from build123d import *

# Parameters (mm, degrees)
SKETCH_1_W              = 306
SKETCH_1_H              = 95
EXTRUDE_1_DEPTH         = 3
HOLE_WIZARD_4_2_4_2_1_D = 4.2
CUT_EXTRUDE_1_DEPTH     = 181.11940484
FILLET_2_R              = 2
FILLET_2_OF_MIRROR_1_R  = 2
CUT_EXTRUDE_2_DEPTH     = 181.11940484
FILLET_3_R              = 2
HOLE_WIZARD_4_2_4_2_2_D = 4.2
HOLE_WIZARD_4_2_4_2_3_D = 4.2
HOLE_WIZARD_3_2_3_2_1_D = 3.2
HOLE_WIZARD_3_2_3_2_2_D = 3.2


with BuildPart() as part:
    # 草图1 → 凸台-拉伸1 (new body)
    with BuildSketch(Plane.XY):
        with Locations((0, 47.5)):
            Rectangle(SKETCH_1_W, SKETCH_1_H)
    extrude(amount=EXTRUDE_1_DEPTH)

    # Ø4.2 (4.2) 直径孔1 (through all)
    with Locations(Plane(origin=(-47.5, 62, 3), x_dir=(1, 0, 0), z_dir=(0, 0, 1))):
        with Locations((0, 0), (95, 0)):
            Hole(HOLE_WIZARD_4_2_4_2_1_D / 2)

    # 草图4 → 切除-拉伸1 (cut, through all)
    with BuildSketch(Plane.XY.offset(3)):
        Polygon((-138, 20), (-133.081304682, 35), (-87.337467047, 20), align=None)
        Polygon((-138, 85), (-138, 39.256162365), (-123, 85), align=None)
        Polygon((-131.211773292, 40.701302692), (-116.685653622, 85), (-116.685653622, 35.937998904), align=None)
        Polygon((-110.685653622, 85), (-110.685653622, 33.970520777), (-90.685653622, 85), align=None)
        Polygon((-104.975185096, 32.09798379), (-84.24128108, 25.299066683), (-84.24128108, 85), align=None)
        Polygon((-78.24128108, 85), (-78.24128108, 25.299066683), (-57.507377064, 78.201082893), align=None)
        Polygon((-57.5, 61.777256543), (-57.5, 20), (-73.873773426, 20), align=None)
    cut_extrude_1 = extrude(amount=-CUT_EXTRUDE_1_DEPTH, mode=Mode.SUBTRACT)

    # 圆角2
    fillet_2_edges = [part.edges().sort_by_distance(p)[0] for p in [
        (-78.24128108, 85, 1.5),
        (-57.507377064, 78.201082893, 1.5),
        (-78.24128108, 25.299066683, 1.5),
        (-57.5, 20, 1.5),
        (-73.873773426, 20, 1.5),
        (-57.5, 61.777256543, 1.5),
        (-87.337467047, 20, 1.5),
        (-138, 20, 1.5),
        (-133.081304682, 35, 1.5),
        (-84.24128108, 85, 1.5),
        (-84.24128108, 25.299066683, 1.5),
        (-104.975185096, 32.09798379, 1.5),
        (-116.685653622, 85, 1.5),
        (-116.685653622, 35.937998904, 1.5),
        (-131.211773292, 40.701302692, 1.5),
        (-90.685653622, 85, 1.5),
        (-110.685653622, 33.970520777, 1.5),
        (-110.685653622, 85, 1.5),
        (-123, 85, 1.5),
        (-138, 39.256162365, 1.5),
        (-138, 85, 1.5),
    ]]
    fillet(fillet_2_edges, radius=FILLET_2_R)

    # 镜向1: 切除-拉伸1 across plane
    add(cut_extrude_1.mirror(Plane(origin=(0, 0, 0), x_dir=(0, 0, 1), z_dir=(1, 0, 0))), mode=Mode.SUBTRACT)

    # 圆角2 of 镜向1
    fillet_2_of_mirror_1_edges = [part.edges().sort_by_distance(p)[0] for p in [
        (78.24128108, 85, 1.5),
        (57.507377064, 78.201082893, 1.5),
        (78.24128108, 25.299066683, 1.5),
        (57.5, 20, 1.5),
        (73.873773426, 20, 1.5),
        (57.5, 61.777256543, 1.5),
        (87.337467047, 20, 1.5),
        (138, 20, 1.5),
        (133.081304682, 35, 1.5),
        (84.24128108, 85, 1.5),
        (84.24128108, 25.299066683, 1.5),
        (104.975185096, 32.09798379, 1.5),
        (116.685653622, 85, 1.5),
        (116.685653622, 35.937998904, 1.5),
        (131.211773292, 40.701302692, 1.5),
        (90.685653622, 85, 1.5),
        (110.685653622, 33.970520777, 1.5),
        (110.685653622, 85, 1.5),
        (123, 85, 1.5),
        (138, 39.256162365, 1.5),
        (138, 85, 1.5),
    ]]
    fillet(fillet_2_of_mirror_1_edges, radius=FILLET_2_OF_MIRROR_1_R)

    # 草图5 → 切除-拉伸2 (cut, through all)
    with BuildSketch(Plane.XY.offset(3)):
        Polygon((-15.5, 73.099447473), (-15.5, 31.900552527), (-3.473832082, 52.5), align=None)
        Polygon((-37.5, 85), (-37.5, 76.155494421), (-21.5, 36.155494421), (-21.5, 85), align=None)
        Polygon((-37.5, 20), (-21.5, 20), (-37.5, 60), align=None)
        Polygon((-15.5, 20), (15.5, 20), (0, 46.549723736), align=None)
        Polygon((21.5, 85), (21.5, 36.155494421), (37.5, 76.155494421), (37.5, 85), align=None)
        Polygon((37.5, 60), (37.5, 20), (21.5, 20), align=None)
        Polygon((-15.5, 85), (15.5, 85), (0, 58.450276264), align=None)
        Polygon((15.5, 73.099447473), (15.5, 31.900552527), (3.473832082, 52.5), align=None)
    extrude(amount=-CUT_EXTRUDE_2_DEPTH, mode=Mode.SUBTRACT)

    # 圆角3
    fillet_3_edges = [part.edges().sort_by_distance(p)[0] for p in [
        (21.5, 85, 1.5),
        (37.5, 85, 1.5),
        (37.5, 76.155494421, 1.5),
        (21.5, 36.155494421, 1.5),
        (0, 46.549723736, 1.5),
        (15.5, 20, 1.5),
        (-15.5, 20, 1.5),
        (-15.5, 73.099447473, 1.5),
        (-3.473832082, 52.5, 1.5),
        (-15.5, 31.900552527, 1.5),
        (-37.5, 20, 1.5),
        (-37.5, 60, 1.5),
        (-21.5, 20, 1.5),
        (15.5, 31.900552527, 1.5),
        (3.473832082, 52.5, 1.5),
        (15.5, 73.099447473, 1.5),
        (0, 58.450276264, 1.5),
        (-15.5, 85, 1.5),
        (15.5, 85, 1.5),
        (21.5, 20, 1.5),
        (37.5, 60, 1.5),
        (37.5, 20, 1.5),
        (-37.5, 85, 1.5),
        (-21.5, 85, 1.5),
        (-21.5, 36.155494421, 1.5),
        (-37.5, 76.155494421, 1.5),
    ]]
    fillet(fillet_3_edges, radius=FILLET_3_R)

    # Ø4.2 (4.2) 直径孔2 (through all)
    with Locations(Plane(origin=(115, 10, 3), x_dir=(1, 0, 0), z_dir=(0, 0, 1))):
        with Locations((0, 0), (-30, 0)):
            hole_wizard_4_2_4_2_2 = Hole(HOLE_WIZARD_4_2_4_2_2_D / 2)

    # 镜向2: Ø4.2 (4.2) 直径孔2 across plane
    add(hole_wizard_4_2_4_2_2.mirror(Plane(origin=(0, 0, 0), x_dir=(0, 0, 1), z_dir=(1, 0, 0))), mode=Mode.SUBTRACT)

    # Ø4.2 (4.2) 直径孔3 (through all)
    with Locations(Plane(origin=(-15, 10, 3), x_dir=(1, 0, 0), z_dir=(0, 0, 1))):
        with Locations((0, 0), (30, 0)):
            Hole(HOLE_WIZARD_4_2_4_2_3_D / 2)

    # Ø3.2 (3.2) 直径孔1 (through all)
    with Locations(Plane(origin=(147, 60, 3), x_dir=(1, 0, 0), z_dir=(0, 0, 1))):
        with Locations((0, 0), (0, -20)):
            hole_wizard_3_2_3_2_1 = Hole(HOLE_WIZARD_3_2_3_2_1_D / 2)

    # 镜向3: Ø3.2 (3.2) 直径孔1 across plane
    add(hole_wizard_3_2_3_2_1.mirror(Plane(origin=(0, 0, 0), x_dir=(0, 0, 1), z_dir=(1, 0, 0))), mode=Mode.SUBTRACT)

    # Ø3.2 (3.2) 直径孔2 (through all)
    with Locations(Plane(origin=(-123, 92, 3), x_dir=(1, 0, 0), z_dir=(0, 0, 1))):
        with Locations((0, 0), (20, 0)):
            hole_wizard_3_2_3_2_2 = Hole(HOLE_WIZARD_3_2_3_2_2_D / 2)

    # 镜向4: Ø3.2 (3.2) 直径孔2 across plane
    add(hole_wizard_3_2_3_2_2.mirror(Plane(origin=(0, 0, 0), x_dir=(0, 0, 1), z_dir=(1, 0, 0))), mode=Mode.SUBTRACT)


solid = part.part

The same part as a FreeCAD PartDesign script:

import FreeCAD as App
import Part
import Sketcher

V = App.Vector


def edges_at(feature, points):
    """Names of the edges that pass closest to the given points."""
    edges = feature.Shape.Edges
    near = lambda p: min(range(len(edges)), key=lambda i: edges[i].distToShape(Part.Vertex(*p))[0])
    return sorted({f"Edge{near(p) + 1}" for p in points})

doc = App.newDocument("Part")
body = doc.addObject("PartDesign::Body", "Body")

sketch1 = body.newObject("Sketcher::SketchObject", "Sketch")
sketch1.AttachmentSupport = (doc.getObject("XY_Plane"), [""])
sketch1.MapMode = "FlatFace"
sketch1.addGeometry([
    Part.LineSegment(V(-153, 95, 0), V(-153, 0, 0)),
    Part.LineSegment(V(-153, 0, 0), V(153, 0, 0)),
    Part.LineSegment(V(153, 0, 0), V(153, 95, 0)),
    Part.LineSegment(V(153, 95, 0), V(-153, 95, 0)),
], False)
sketch1.addConstraint([
    Sketcher.Constraint("Coincident", 0, 2, 1, 1),
    Sketcher.Constraint("Coincident", 1, 2, 2, 1),
    Sketcher.Constraint("Coincident", 2, 2, 3, 1),
    Sketcher.Constraint("Coincident", 3, 2, 0, 1),
    Sketcher.Constraint("Vertical", 0),
    Sketcher.Constraint("Horizontal", 1),
    Sketcher.Constraint("Vertical", 2),
    Sketcher.Constraint("Horizontal", 3),
    Sketcher.Constraint("Symmetric", 0, 2, 1, 2, -1, 1),
    Sketcher.Constraint("DistanceX", 1, 1, 1, 2, 306.0),
    Sketcher.Constraint("DistanceY", 0, 2, 0, 1, 95.0),
])
pad1 = body.newObject("PartDesign::Pad", "Pad")
pad1.Profile = sketch1
pad1.Length = 3

sketch2 = body.newObject("Sketcher::SketchObject", "Sketch001")
sketch2.AttachmentSupport = (doc.getObject("XY_Plane"), [""])
sketch2.MapMode = "FlatFace"
sketch2.AttachmentOffset = App.Placement(V(0, 0, 3), App.Rotation())
sketch2.addGeometry([
    Part.Circle(V(-47.5, 62, 0), V(0, 0, 1), 2.1),
    Part.Circle(V(47.5, 62, 0), V(0, 0, 1), 2.1),
], False)
sketch2.addConstraint([
    Sketcher.Constraint("Equal", 0, 1),
    Sketcher.Constraint("Symmetric", 0, 3, 1, 3, -2),
    Sketcher.Constraint("Diameter", 0, 4.2),
    Sketcher.Constraint("DistanceY", -1, 1, 0, 3, 62.0),
    Sketcher.Constraint("DistanceX", 0, 3, 1, 3, 95.0),
])
doc.recompute()
hole = body.newObject("PartDesign::Hole", "Hole")
hole.Profile = sketch2
hole.ThreadType = "None"
hole.Diameter = 4.2
hole.DepthType = "ThroughAll"

sketch3 = body.newObject("Sketcher::SketchObject", "Sketch002")
sketch3.AttachmentSupport = (doc.getObject("XY_Plane"), [""])
sketch3.MapMode = "FlatFace"
sketch3.AttachmentOffset = App.Placement(V(0, 0, 3), App.Rotation())
sketch3.addGeometry([
    Part.LineSegment(V(-133, 35, 0), V(-138, 20, 0)),
    Part.LineSegment(V(-138, 20, 0), V(-87, 20, 0)),
    Part.LineSegment(V(-87, 20, 0), V(-133, 35, 0)),
    Part.LineSegment(V(-138, 85, 0), V(-138, 39, 0)),
    Part.LineSegment(V(-138, 39, 0), V(-123, 85, 0)),
    Part.LineSegment(V(-123, 85, 0), V(-138, 85, 0)),
    Part.LineSegment(V(-117, 85, 0), V(-131, 41, 0)),
    Part.LineSegment(V(-131, 41, 0), V(-117, 36, 0)),
    Part.LineSegment(V(-117, 36, 0), V(-117, 85, 0)),
    Part.LineSegment(V(-111, 85, 0), V(-111, 34, 0)),
    Part.LineSegment(V(-111, 34, 0), V(-91, 85, 0)),
    Part.LineSegment(V(-91, 85, 0), V(-111, 85, 0)),
    Part.LineSegment(V(-105, 32, 0), V(-84, 25, 0)),
    Part.LineSegment(V(-84, 25, 0), V(-84, 85, 0)),
    Part.LineSegment(V(-84, 85, 0), V(-105, 32, 0)),
    Part.LineSegment(V(-78, 85, 0), V(-78, 25, 0)),
    Part.LineSegment(V(-78, 25, 0), V(-58, 78, 0)),
    Part.LineSegment(V(-58, 78, 0), V(-78, 85, 0)),
    Part.LineSegment(V(-58, 20, 0), V(-58, 62, 0)),
    Part.LineSegment(V(-58, 62, 0), V(-74, 20, 0)),
    Part.LineSegment(V(-74, 20, 0), V(-58, 20, 0)),
], False)
sketch3.addConstraint([
    Sketcher.Constraint("Coincident", 0, 2, 1, 1),
    Sketcher.Constraint("Coincident", 1, 2, 2, 1),
    Sketcher.Constraint("Coincident", 2, 2, 0, 1),
    Sketcher.Constraint("Coincident", 3, 2, 4, 1),
    Sketcher.Constraint("Coincident", 4, 2, 5, 1),
    Sketcher.Constraint("Coincident", 5, 2, 3, 1),
    Sketcher.Constraint("Coincident", 6, 2, 7, 1),
    Sketcher.Constraint("Coincident", 7, 2, 8, 1),
    Sketcher.Constraint("Coincident", 8, 2, 6, 1),
    Sketcher.Constraint("Coincident", 9, 2, 10, 1),
    Sketcher.Constraint("Coincident", 10, 2, 11, 1),
    Sketcher.Constraint("Coincident", 11, 2, 9, 1),
    Sketcher.Constraint("Coincident", 12, 2, 13, 1),
    Sketcher.Constraint("Coincident", 13, 2, 14, 1),
    Sketcher.Constraint("Coincident", 14, 2, 12, 1),
    Sketcher.Constraint("Coincident", 15, 2, 16, 1),
    Sketcher.Constraint("Coincident", 16, 2, 17, 1),
    Sketcher.Constraint("Coincident", 17, 2, 15, 1),
    Sketcher.Constraint("Coincident", 18, 2, 19, 1),
    Sketcher.Constraint("Coincident", 19, 2, 20, 1),
    Sketcher.Constraint("Coincident", 20, 2, 18, 1),
    Sketcher.Constraint("Horizontal", 1),
    Sketcher.Constraint("Vertical", 3),
    Sketcher.Constraint("Horizontal", 5),
    Sketcher.Constraint("Vertical", 8),
    Sketcher.Constraint("Vertical", 9),
    Sketcher.Constraint("Horizontal", 11),
    Sketcher.Constraint("Vertical", 13),
    Sketcher.Constraint("Vertical", 15),
    Sketcher.Constraint("Vertical", 18),
    Sketcher.Constraint("Horizontal", 20),
    Sketcher.Constraint("Perpendicular", 0, 2),
    Sketcher.Constraint("Perpendicular", 2, 4),
    Sketcher.Constraint("Parallel", 4, 6),
    Sketcher.Constraint("Perpendicular", 6, 7),
    Sketcher.Constraint("Parallel", 7, 12),
    Sketcher.Constraint("Parallel", 10, 14),
    Sketcher.Constraint("Parallel", 14, 16),
    Sketcher.Constraint("Parallel", 12, 17),
    Sketcher.Constraint("Parallel", 16, 19),
    Sketcher.Constraint("Horizontal", 5, 2, 8, 2),
    Sketcher.Constraint("Horizontal", 8, 2, 10, 2),
    Sketcher.Constraint("Horizontal", 11, 2, 13, 2),
    Sketcher.Constraint("Horizontal", 12, 2, 15, 2),
    Sketcher.Constraint("Horizontal", 13, 2, 17, 2),
    Sketcher.Constraint("Horizontal", 1, 2, 19, 2),
    Sketcher.Constraint("Vertical", 0, 2, 3, 2),
    Sketcher.Constraint("Equal", 2, 4),
    Sketcher.Constraint("DistanceX", 5, 2, 5, 1, 15.0),
    Sketcher.Constraint("DistanceX", 11, 2, 11, 1, 20.0),
    Sketcher.Constraint("DistanceX", 0, 2, -1, 1, 138.0),
    Sketcher.Constraint("DistanceY", -1, 1, 0, 2, 20.0),
    Sketcher.Constraint("DistanceY", -1, 1, 4, 2, 85.0),
    Sketcher.Constraint("DistanceX", 7, 2, 9, 2, 6.0),
    Sketcher.Constraint("DistanceX", 12, 2, 15, 2, 6.0),
    Sketcher.Constraint("DistanceX", 18, 2, -1, 1, 57.5),
    Sketcher.Constraint("DistanceY", 8, 1, 8, 2, 49.062001),
    Sketcher.Constraint("DistanceY", 9, 2, 9, 1, 51.029479),
    Sketcher.Constraint("Distance", 7, 15.287159),
    Sketcher.Constraint("Distance", 14, 56.82005),
    Sketcher.Constraint("DistanceX", 20, 1, 20, 2, 16.373773),
    Sketcher.Constraint("DistanceX", 12, 2, -1, 1, 84.241281),
    Sketcher.Constraint("DistanceX", 2, 2, 6, 2, 1.869531),
])
pocket1 = body.newObject("PartDesign::Pocket", "Pocket")
pocket1.Profile = sketch3
pocket1.Type = "ThroughAll"
doc.recompute()

fillet = body.newObject("PartDesign::Fillet", "Fillet")
fillet.Base = (pocket1, edges_at(pocket1, [
    (-78.241, 85, 1.5),
    (-57.507, 78.201, 1.5),
    (-78.241, 25.299, 1.5),
    (-57.5, 20, 1.5),
    (-73.874, 20, 1.5),
    (-57.5, 61.777, 1.5),
    (-87.337, 20, 1.5),
    (-138, 20, 1.5),
    (-133.081, 35, 1.5),
    (-84.241, 85, 1.5),
    (-84.241, 25.299, 1.5),
    (-104.975, 32.098, 1.5),
    (-116.686, 85, 1.5),
    (-116.686, 35.938, 1.5),
    (-131.212, 40.701, 1.5),
    (-90.686, 85, 1.5),
    (-110.686, 33.971, 1.5),
    (-110.686, 85, 1.5),
    (-123, 85, 1.5),
    (-138, 39.256, 1.5),
    (-138, 85, 1.5),
]))
fillet.Radius = 2
doc.recompute()

mirrored = body.newObject("PartDesign::Mirrored", "Mirrored")
mirrored.Originals = [pocket1]
mirrored.MirrorPlane = (doc.getObject("YZ_Plane"), [""])
body.Tip = mirrored
doc.recompute()

fillet2 = body.newObject("PartDesign::Fillet", "Fillet001")
fillet2.Base = (mirrored, edges_at(mirrored, [
    (78.241, 85, 1.5),
    (57.507, 78.201, 1.5),
    (78.241, 25.299, 1.5),
    (57.5, 20, 1.5),
    (73.874, 20, 1.5),
    (57.5, 61.777, 1.5),
    (87.337, 20, 1.5),
    (138, 20, 1.5),
    (133.081, 35, 1.5),
    (84.241, 85, 1.5),
    (84.241, 25.299, 1.5),
    (104.975, 32.098, 1.5),
    (116.686, 85, 1.5),
    (116.686, 35.938, 1.5),
    (131.212, 40.701, 1.5),
    (90.686, 85, 1.5),
    (110.686, 33.971, 1.5),
    (110.686, 85, 1.5),
    (123, 85, 1.5),
    (138, 39.256, 1.5),
    (138, 85, 1.5),
]))
fillet2.Radius = 2

sketch4 = body.newObject("Sketcher::SketchObject", "Sketch003")
sketch4.AttachmentSupport = (doc.getObject("XY_Plane"), [""])
sketch4.MapMode = "FlatFace"
sketch4.AttachmentOffset = App.Placement(V(0, 0, 3), App.Rotation())
sketch4.addGeometry([
    Part.LineSegment(V(-16, 73, 0), V(-16, 32, 0)),
    Part.LineSegment(V(-16, 32, 0), V(-3, 52, 0)),
    Part.LineSegment(V(-3, 52, 0), V(-16, 73, 0)),
    Part.LineSegment(V(-38, 85, 0), V(-38, 76, 0)),
    Part.LineSegment(V(-38, 76, 0), V(-22, 36, 0)),
    Part.LineSegment(V(-22, 36, 0), V(-22, 85, 0)),
    Part.LineSegment(V(-22, 85, 0), V(-38, 85, 0)),
    Part.LineSegment(V(-38, 20, 0), V(-22, 20, 0)),
    Part.LineSegment(V(-22, 20, 0), V(-38, 60, 0)),
    Part.LineSegment(V(-38, 60, 0), V(-38, 20, 0)),
    Part.LineSegment(V(-16, 20, 0), V(16, 20, 0)),
    Part.LineSegment(V(16, 20, 0), V(0, 47, 0)),
    Part.LineSegment(V(0, 47, 0), V(-16, 20, 0)),
    Part.LineSegment(V(22, 85, 0), V(22, 36, 0)),
    Part.LineSegment(V(22, 36, 0), V(38, 76, 0)),
    Part.LineSegment(V(38, 76, 0), V(38, 85, 0)),
    Part.LineSegment(V(38, 85, 0), V(22, 85, 0)),
    Part.LineSegment(V(38, 20, 0), V(38, 60, 0)),
    Part.LineSegment(V(38, 60, 0), V(22, 20, 0)),
    Part.LineSegment(V(22, 20, 0), V(38, 20, 0)),
    Part.LineSegment(V(16, 85, 0), V(-16, 85, 0)),
    Part.LineSegment(V(-16, 85, 0), V(0, 58, 0)),
    Part.LineSegment(V(0, 58, 0), V(16, 85, 0)),
    Part.LineSegment(V(16, 32, 0), V(16, 73, 0)),
    Part.LineSegment(V(16, 73, 0), V(3, 52, 0)),
    Part.LineSegment(V(3, 52, 0), V(16, 32, 0)),
], False)
sketch4.addConstraint([
    Sketcher.Constraint("Coincident", 0, 2, 1, 1),
    Sketcher.Constraint("Coincident", 1, 2, 2, 1),
    Sketcher.Constraint("Coincident", 2, 2, 0, 1),
    Sketcher.Constraint("Coincident", 3, 2, 4, 1),
    Sketcher.Constraint("Coincident", 4, 2, 5, 1),
    Sketcher.Constraint("Coincident", 5, 2, 6, 1),
    Sketcher.Constraint("Coincident", 6, 2, 3, 1),
    Sketcher.Constraint("Coincident", 7, 2, 8, 1),
    Sketcher.Constraint("Coincident", 8, 2, 9, 1),
    Sketcher.Constraint("Coincident", 9, 2, 7, 1),
    Sketcher.Constraint("Coincident", 10, 2, 11, 1),
    Sketcher.Constraint("Coincident", 11, 2, 12, 1),
    Sketcher.Constraint("Coincident", 12, 2, 10, 1),
    Sketcher.Constraint("Coincident", 13, 2, 14, 1),
    Sketcher.Constraint("Coincident", 14, 2, 15, 1),
    Sketcher.Constraint("Coincident", 15, 2, 16, 1),
    Sketcher.Constraint("Coincident", 16, 2, 13, 1),
    Sketcher.Constraint("Coincident", 17, 2, 18, 1),
    Sketcher.Constraint("Coincident", 18, 2, 19, 1),
    Sketcher.Constraint("Coincident", 19, 2, 17, 1),
    Sketcher.Constraint("Coincident", 20, 2, 21, 1),
    Sketcher.Constraint("Coincident", 21, 2, 22, 1),
    Sketcher.Constraint("Coincident", 22, 2, 20, 1),
    Sketcher.Constraint("Coincident", 23, 2, 24, 1),
    Sketcher.Constraint("Coincident", 24, 2, 25, 1),
    Sketcher.Constraint("Coincident", 25, 2, 23, 1),
    Sketcher.Constraint("Vertical", 0),
    Sketcher.Constraint("Vertical", 3),
    Sketcher.Constraint("Vertical", 5),
    Sketcher.Constraint("Horizontal", 6),
    Sketcher.Constraint("Horizontal", 7),
    Sketcher.Constraint("Vertical", 9),
    Sketcher.Constraint("Horizontal", 10),
    Sketcher.Constraint("Vertical", 13),
    Sketcher.Constraint("Vertical", 15),
    Sketcher.Constraint("Horizontal", 16),
    Sketcher.Constraint("Vertical", 17),
    Sketcher.Constraint("Horizontal", 19),
    Sketcher.Constraint("Horizontal", 20),
    Sketcher.Constraint("Vertical", 23),
    Sketcher.Constraint("Symmetric", 4, 2, 13, 2, -2),
    Sketcher.Constraint("Symmetric", 3, 2, 14, 2, -2),
    Sketcher.Constraint("Symmetric", 8, 2, 17, 2, -2),
    Sketcher.Constraint("Symmetric", 7, 2, 18, 2, -2),
    Sketcher.Constraint("Symmetric", 2, 2, 23, 2, -2),
    Sketcher.Constraint("Symmetric", 1, 2, 24, 2, -2),
    Sketcher.Constraint("PointOnObject", 11, 2, -2),
    Sketcher.Constraint("PointOnObject", 21, 2, -2),
    Sketcher.Constraint("Parallel", 4, 8),
    Sketcher.Constraint("Parallel", 2, 11),
    Sketcher.Constraint("Parallel", 1, 12),
    Sketcher.Constraint("Parallel", 11, 21),
    Sketcher.Constraint("Parallel", 12, 22),
    Sketcher.Constraint("Parallel", 22, 24),
    Sketcher.Constraint("Parallel", 21, 25),
    Sketcher.Constraint("Horizontal", 9, 2, 10, 2),
    Sketcher.Constraint("Horizontal", 6, 2, 15, 2),
    Sketcher.Constraint("Horizontal", 16, 2, 20, 2),
    Sketcher.Constraint("Vertical", 5, 2, 7, 2),
    Sketcher.Constraint("Vertical", 6, 2, 8, 2),
    Sketcher.Constraint("Vertical", 2, 2, 12, 2),
    Sketcher.Constraint("Vertical", 12, 2, 20, 2),
    Sketcher.Constraint("DistanceX", 6, 2, 6, 1, 16.0),
    Sketcher.Constraint("DistanceX", 10, 1, 10, 2, 31.0),
    Sketcher.Constraint("DistanceY", 9, 2, 9, 1, 40.0),
    Sketcher.Constraint("DistanceY", -1, 1, 5, 2, 85.0),
    Sketcher.Constraint("DistanceY", -1, 1, 7, 2, 20.0),
    Sketcher.Constraint("DistanceX", 3, 2, 2, 2, 22.0),
    Sketcher.Constraint("DistanceY", -1, 1, 1, 2, 52.5),
    Sketcher.Constraint("DistanceY", 0, 2, 0, 1, 41.198895),
    Sketcher.Constraint("DistanceY", 3, 2, 3, 1, 8.844506),
    Sketcher.Constraint("DistanceY", 0, 2, 11, 2, 14.649171),
])
pocket2 = body.newObject("PartDesign::Pocket", "Pocket001")
pocket2.Profile = sketch4
pocket2.Type = "ThroughAll"
doc.recompute()

fillet3 = body.newObject("PartDesign::Fillet", "Fillet002")
fillet3.Base = (pocket2, edges_at(pocket2, [
    (21.5, 85, 1.5),
    (37.5, 85, 1.5),
    (37.5, 76.155, 1.5),
    (21.5, 36.155, 1.5),
    (0, 46.55, 1.5),
    (15.5, 20, 1.5),
    (-15.5, 20, 1.5),
    (-15.5, 73.099, 1.5),
    (-3.474, 52.5, 1.5),
    (-15.5, 31.901, 1.5),
    (-37.5, 20, 1.5),
    (-37.5, 60, 1.5),
    (-21.5, 20, 1.5),
    (15.5, 31.901, 1.5),
    (3.474, 52.5, 1.5),
    (15.5, 73.099, 1.5),
    (0, 58.45, 1.5),
    (-15.5, 85, 1.5),
    (15.5, 85, 1.5),
    (21.5, 20, 1.5),
    (37.5, 60, 1.5),
    (37.5, 20, 1.5),
    (-37.5, 85, 1.5),
    (-21.5, 85, 1.5),
    (-21.5, 36.155, 1.5),
    (-37.5, 76.155, 1.5),
]))
fillet3.Radius = 2

sketch5 = body.newObject("Sketcher::SketchObject", "Sketch004")
sketch5.AttachmentSupport = (doc.getObject("XY_Plane"), [""])
sketch5.MapMode = "FlatFace"
sketch5.AttachmentOffset = App.Placement(V(0, 0, 3), App.Rotation())
sketch5.addGeometry([
    Part.Circle(V(115, 10, 0), V(0, 0, 1), 2.1),
    Part.Circle(V(85, 10, 0), V(0, 0, 1), 2.1),
], False)
sketch5.addConstraint([
    Sketcher.Constraint("Equal", 0, 1),
    Sketcher.Constraint("Horizontal", 0, 3, 1, 3),
    Sketcher.Constraint("Diameter", 0, 4.2),
    Sketcher.Constraint("DistanceX", -1, 1, 0, 3, 115.0),
    Sketcher.Constraint("DistanceY", -1, 1, 0, 3, 10.0),
    Sketcher.Constraint("DistanceX", -1, 1, 1, 3, 85.0),
])
doc.recompute()
hole2 = body.newObject("PartDesign::Hole", "Hole001")
hole2.Profile = sketch5
hole2.ThreadType = "None"
hole2.Diameter = 4.2
hole2.DepthType = "ThroughAll"
doc.recompute()

mirrored2 = body.newObject("PartDesign::Mirrored", "Mirrored001")
mirrored2.Originals = [hole2]
mirrored2.MirrorPlane = (doc.getObject("YZ_Plane"), [""])
body.Tip = mirrored2

sketch6 = body.newObject("Sketcher::SketchObject", "Sketch005")
sketch6.AttachmentSupport = (doc.getObject("XY_Plane"), [""])
sketch6.MapMode = "FlatFace"
sketch6.AttachmentOffset = App.Placement(V(0, 0, 3), App.Rotation())
sketch6.addGeometry([
    Part.Circle(V(-15, 10, 0), V(0, 0, 1), 2.1),
    Part.Circle(V(15, 10, 0), V(0, 0, 1), 2.1),
], False)
sketch6.addConstraint([
    Sketcher.Constraint("Equal", 0, 1),
    Sketcher.Constraint("Symmetric", 0, 3, 1, 3, -2),
    Sketcher.Constraint("Diameter", 0, 4.2),
    Sketcher.Constraint("DistanceX", 0, 3, -1, 1, 15.0),
    Sketcher.Constraint("DistanceY", -1, 1, 0, 3, 10.0),
])
doc.recompute()
hole3 = body.newObject("PartDesign::Hole", "Hole002")
hole3.Profile = sketch6
hole3.ThreadType = "None"
hole3.Diameter = 4.2
hole3.DepthType = "ThroughAll"

sketch7 = body.newObject("Sketcher::SketchObject", "Sketch006")
sketch7.AttachmentSupport = (doc.getObject("XY_Plane"), [""])
sketch7.MapMode = "FlatFace"
sketch7.AttachmentOffset = App.Placement(V(0, 0, 3), App.Rotation())
sketch7.addGeometry([
    Part.Circle(V(147, 60, 0), V(0, 0, 1), 1.6),
    Part.Circle(V(147, 40, 0), V(0, 0, 1), 1.6),
], False)
sketch7.addConstraint([
    Sketcher.Constraint("Equal", 0, 1),
    Sketcher.Constraint("Vertical", 0, 3, 1, 3),
    Sketcher.Constraint("Diameter", 0, 3.2),
    Sketcher.Constraint("DistanceX", -1, 1, 0, 3, 147.0),
    Sketcher.Constraint("DistanceY", -1, 1, 0, 3, 60.0),
    Sketcher.Constraint("DistanceY", -1, 1, 1, 3, 40.0),
])
doc.recompute()
hole4 = body.newObject("PartDesign::Hole", "Hole003")
hole4.Profile = sketch7
hole4.ThreadType = "None"
hole4.Diameter = 3.2
hole4.DepthType = "ThroughAll"
doc.recompute()

mirrored3 = body.newObject("PartDesign::Mirrored", "Mirrored002")
mirrored3.Originals = [hole4]
mirrored3.MirrorPlane = (doc.getObject("YZ_Plane"), [""])
body.Tip = mirrored3

sketch8 = body.newObject("Sketcher::SketchObject", "Sketch007")
sketch8.AttachmentSupport = (doc.getObject("XY_Plane"), [""])
sketch8.MapMode = "FlatFace"
sketch8.AttachmentOffset = App.Placement(V(0, 0, 3), App.Rotation())
sketch8.addGeometry([
    Part.Circle(V(-123, 92, 0), V(0, 0, 1), 1.6),
    Part.Circle(V(-103, 92, 0), V(0, 0, 1), 1.6),
], False)
sketch8.addConstraint([
    Sketcher.Constraint("Equal", 0, 1),
    Sketcher.Constraint("Horizontal", 0, 3, 1, 3),
    Sketcher.Constraint("Diameter", 0, 3.2),
    Sketcher.Constraint("DistanceX", 0, 3, -1, 1, 123.0),
    Sketcher.Constraint("DistanceY", -1, 1, 0, 3, 92.0),
    Sketcher.Constraint("DistanceX", 1, 3, -1, 1, 103.0),
])
doc.recompute()
hole5 = body.newObject("PartDesign::Hole", "Hole004")
hole5.Profile = sketch8
hole5.ThreadType = "None"
hole5.Diameter = 3.2
hole5.DepthType = "ThroughAll"
doc.recompute()

mirrored4 = body.newObject("PartDesign::Mirrored", "Mirrored003")
mirrored4.Originals = [hole5]
mirrored4.MirrorPlane = (doc.getObject("YZ_Plane"), [""])
body.Tip = mirrored4

doc.recompute()
